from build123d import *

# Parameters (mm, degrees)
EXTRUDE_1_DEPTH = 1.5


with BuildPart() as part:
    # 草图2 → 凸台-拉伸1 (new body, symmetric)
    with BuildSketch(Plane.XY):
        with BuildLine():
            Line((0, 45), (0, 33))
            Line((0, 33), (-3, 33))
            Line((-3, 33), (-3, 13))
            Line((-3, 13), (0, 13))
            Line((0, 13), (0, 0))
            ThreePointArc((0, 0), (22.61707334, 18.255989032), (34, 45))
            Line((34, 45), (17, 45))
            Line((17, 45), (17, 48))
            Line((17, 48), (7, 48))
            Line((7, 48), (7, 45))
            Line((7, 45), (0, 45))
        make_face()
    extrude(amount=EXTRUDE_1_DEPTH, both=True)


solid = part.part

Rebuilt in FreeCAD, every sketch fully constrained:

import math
import FreeCAD as App
import Part
import Sketcher

doc = App.newDocument("Part")
body = doc.addObject("PartDesign::Body", "Body")

# Sketch on XY plane
sketch1 = body.newObject("Sketcher::SketchObject", "Sketch")
sketch1.AttachmentSupport = (doc.getObject("XY_Plane"), [""])
sketch1.MapMode = "FlatFace"
sketch1.addGeometry(Part.LineSegment(App.Vector(0, 45, 0), App.Vector(0, 33, 0)), False)
sketch1.addGeometry(Part.LineSegment(App.Vector(0, 33, 0), App.Vector(-3, 33, 0)), False)
sketch1.addGeometry(Part.LineSegment(App.Vector(-3, 33, 0), App.Vector(-3, 13, 0)), False)
sketch1.addGeometry(Part.LineSegment(App.Vector(-3, 13, 0), App.Vector(0, 13, 0)), False)
sketch1.addGeometry(Part.LineSegment(App.Vector(0, 13, 0), App.Vector(0, 0, 0)), False)
sketch1.addGeometry(Part.ArcOfCircle(Part.Circle(App.Vector(-25.3, 54.4, 0), App.Vector(0, 0, 1), 60), math.radians(-65), math.radians(-9)), False)
sketch1.addGeometry(Part.LineSegment(App.Vector(34, 45, 0), App.Vector(17, 45, 0)), False)
sketch1.addGeometry(Part.LineSegment(App.Vector(17, 45, 0), App.Vector(17, 48, 0)), False)
sketch1.addGeometry(Part.LineSegment(App.Vector(17, 48, 0), App.Vector(7, 48, 0)), False)
sketch1.addGeometry(Part.LineSegment(App.Vector(7, 48, 0), App.Vector(7, 45, 0)), False)
sketch1.addGeometry(Part.LineSegment(App.Vector(7, 45, 0), App.Vector(0, 45, 0)), False)
sketch1.addConstraint(Sketcher.Constraint("Coincident", 0, 2, 1, 1))
sketch1.addConstraint(Sketcher.Constraint("Coincident", 1, 2, 2, 1))
sketch1.addConstraint(Sketcher.Constraint("Coincident", 2, 2, 3, 1))
sketch1.addConstraint(Sketcher.Constraint("Coincident", 3, 2, 4, 1))
sketch1.addConstraint(Sketcher.Constraint("Coincident", 4, 2, 5, 1))
sketch1.addConstraint(Sketcher.Constraint("Coincident", 5, 2, 6, 1))
sketch1.addConstraint(Sketcher.Constraint("Coincident", 6, 2, 7, 1))
sketch1.addConstraint(Sketcher.Constraint("Coincident", 7, 2, 8, 1))
sketch1.addConstraint(Sketcher.Constraint("Coincident", 8, 2, 9, 1))
sketch1.addConstraint(Sketcher.Constraint("Coincident", 9, 2, 10, 1))
sketch1.addConstraint(Sketcher.Constraint("Coincident", 10, 2, 0, 1))
sketch1.addConstraint(Sketcher.Constraint("Vertical", 0))
sketch1.addConstraint(Sketcher.Constraint("Horizontal", 1))
sketch1.addConstraint(Sketcher.Constraint("Vertical", 2))
sketch1.addConstraint(Sketcher.Constraint("Horizontal", 3))
sketch1.addConstraint(Sketcher.Constraint("Vertical", 4))
sketch1.addConstraint(Sketcher.Constraint("Horizontal", 6))
sketch1.addConstraint(Sketcher.Constraint("Vertical", 7))
sketch1.addConstraint(Sketcher.Constraint("Horizontal", 8))
sketch1.addConstraint(Sketcher.Constraint("Vertical", 9))
sketch1.addConstraint(Sketcher.Constraint("Horizontal", 10))
sketch1.addConstraint(Sketcher.Constraint("Coincident", 4, 2, -1, 1))
sketch1.addConstraint(Sketcher.Constraint("PointOnObject", 0, 2, -2))
sketch1.addConstraint(Sketcher.Constraint("Horizontal", 6, 2, 9, 2))
sketch1.addConstraint(Sketcher.Constraint("Equal", 3, 7))
sketch1.addConstraint(Sketcher.Constraint("Radius", 5, 60.0))
sketch1.addConstraint(Sketcher.Constraint("DistanceX", 1, 2, 1, 1, 3.0))
sketch1.addConstraint(Sketcher.Constraint("DistanceX", 6, 2, 6, 1, 17.0))
sketch1.addConstraint(Sketcher.Constraint("DistanceX", 8, 2, 8, 1, 10.0))
sketch1.addConstraint(Sketcher.Constraint("DistanceX", 10, 2, 10, 1, 7.0))
sketch1.addConstraint(Sketcher.Constraint("DistanceY", 0, 2, 0, 1, 12.0))
sketch1.addConstraint(Sketcher.Constraint("DistanceY", 2, 2, 2, 1, 20.0))
sketch1.addConstraint(Sketcher.Constraint("DistanceY", 4, 2, 4, 1, 13.0))
pad1 = body.newObject("PartDesign::Pad", "Pad")
pad1.Profile = sketch1
pad1.Length = 3
pad1.Midplane = True

doc.recompute()
